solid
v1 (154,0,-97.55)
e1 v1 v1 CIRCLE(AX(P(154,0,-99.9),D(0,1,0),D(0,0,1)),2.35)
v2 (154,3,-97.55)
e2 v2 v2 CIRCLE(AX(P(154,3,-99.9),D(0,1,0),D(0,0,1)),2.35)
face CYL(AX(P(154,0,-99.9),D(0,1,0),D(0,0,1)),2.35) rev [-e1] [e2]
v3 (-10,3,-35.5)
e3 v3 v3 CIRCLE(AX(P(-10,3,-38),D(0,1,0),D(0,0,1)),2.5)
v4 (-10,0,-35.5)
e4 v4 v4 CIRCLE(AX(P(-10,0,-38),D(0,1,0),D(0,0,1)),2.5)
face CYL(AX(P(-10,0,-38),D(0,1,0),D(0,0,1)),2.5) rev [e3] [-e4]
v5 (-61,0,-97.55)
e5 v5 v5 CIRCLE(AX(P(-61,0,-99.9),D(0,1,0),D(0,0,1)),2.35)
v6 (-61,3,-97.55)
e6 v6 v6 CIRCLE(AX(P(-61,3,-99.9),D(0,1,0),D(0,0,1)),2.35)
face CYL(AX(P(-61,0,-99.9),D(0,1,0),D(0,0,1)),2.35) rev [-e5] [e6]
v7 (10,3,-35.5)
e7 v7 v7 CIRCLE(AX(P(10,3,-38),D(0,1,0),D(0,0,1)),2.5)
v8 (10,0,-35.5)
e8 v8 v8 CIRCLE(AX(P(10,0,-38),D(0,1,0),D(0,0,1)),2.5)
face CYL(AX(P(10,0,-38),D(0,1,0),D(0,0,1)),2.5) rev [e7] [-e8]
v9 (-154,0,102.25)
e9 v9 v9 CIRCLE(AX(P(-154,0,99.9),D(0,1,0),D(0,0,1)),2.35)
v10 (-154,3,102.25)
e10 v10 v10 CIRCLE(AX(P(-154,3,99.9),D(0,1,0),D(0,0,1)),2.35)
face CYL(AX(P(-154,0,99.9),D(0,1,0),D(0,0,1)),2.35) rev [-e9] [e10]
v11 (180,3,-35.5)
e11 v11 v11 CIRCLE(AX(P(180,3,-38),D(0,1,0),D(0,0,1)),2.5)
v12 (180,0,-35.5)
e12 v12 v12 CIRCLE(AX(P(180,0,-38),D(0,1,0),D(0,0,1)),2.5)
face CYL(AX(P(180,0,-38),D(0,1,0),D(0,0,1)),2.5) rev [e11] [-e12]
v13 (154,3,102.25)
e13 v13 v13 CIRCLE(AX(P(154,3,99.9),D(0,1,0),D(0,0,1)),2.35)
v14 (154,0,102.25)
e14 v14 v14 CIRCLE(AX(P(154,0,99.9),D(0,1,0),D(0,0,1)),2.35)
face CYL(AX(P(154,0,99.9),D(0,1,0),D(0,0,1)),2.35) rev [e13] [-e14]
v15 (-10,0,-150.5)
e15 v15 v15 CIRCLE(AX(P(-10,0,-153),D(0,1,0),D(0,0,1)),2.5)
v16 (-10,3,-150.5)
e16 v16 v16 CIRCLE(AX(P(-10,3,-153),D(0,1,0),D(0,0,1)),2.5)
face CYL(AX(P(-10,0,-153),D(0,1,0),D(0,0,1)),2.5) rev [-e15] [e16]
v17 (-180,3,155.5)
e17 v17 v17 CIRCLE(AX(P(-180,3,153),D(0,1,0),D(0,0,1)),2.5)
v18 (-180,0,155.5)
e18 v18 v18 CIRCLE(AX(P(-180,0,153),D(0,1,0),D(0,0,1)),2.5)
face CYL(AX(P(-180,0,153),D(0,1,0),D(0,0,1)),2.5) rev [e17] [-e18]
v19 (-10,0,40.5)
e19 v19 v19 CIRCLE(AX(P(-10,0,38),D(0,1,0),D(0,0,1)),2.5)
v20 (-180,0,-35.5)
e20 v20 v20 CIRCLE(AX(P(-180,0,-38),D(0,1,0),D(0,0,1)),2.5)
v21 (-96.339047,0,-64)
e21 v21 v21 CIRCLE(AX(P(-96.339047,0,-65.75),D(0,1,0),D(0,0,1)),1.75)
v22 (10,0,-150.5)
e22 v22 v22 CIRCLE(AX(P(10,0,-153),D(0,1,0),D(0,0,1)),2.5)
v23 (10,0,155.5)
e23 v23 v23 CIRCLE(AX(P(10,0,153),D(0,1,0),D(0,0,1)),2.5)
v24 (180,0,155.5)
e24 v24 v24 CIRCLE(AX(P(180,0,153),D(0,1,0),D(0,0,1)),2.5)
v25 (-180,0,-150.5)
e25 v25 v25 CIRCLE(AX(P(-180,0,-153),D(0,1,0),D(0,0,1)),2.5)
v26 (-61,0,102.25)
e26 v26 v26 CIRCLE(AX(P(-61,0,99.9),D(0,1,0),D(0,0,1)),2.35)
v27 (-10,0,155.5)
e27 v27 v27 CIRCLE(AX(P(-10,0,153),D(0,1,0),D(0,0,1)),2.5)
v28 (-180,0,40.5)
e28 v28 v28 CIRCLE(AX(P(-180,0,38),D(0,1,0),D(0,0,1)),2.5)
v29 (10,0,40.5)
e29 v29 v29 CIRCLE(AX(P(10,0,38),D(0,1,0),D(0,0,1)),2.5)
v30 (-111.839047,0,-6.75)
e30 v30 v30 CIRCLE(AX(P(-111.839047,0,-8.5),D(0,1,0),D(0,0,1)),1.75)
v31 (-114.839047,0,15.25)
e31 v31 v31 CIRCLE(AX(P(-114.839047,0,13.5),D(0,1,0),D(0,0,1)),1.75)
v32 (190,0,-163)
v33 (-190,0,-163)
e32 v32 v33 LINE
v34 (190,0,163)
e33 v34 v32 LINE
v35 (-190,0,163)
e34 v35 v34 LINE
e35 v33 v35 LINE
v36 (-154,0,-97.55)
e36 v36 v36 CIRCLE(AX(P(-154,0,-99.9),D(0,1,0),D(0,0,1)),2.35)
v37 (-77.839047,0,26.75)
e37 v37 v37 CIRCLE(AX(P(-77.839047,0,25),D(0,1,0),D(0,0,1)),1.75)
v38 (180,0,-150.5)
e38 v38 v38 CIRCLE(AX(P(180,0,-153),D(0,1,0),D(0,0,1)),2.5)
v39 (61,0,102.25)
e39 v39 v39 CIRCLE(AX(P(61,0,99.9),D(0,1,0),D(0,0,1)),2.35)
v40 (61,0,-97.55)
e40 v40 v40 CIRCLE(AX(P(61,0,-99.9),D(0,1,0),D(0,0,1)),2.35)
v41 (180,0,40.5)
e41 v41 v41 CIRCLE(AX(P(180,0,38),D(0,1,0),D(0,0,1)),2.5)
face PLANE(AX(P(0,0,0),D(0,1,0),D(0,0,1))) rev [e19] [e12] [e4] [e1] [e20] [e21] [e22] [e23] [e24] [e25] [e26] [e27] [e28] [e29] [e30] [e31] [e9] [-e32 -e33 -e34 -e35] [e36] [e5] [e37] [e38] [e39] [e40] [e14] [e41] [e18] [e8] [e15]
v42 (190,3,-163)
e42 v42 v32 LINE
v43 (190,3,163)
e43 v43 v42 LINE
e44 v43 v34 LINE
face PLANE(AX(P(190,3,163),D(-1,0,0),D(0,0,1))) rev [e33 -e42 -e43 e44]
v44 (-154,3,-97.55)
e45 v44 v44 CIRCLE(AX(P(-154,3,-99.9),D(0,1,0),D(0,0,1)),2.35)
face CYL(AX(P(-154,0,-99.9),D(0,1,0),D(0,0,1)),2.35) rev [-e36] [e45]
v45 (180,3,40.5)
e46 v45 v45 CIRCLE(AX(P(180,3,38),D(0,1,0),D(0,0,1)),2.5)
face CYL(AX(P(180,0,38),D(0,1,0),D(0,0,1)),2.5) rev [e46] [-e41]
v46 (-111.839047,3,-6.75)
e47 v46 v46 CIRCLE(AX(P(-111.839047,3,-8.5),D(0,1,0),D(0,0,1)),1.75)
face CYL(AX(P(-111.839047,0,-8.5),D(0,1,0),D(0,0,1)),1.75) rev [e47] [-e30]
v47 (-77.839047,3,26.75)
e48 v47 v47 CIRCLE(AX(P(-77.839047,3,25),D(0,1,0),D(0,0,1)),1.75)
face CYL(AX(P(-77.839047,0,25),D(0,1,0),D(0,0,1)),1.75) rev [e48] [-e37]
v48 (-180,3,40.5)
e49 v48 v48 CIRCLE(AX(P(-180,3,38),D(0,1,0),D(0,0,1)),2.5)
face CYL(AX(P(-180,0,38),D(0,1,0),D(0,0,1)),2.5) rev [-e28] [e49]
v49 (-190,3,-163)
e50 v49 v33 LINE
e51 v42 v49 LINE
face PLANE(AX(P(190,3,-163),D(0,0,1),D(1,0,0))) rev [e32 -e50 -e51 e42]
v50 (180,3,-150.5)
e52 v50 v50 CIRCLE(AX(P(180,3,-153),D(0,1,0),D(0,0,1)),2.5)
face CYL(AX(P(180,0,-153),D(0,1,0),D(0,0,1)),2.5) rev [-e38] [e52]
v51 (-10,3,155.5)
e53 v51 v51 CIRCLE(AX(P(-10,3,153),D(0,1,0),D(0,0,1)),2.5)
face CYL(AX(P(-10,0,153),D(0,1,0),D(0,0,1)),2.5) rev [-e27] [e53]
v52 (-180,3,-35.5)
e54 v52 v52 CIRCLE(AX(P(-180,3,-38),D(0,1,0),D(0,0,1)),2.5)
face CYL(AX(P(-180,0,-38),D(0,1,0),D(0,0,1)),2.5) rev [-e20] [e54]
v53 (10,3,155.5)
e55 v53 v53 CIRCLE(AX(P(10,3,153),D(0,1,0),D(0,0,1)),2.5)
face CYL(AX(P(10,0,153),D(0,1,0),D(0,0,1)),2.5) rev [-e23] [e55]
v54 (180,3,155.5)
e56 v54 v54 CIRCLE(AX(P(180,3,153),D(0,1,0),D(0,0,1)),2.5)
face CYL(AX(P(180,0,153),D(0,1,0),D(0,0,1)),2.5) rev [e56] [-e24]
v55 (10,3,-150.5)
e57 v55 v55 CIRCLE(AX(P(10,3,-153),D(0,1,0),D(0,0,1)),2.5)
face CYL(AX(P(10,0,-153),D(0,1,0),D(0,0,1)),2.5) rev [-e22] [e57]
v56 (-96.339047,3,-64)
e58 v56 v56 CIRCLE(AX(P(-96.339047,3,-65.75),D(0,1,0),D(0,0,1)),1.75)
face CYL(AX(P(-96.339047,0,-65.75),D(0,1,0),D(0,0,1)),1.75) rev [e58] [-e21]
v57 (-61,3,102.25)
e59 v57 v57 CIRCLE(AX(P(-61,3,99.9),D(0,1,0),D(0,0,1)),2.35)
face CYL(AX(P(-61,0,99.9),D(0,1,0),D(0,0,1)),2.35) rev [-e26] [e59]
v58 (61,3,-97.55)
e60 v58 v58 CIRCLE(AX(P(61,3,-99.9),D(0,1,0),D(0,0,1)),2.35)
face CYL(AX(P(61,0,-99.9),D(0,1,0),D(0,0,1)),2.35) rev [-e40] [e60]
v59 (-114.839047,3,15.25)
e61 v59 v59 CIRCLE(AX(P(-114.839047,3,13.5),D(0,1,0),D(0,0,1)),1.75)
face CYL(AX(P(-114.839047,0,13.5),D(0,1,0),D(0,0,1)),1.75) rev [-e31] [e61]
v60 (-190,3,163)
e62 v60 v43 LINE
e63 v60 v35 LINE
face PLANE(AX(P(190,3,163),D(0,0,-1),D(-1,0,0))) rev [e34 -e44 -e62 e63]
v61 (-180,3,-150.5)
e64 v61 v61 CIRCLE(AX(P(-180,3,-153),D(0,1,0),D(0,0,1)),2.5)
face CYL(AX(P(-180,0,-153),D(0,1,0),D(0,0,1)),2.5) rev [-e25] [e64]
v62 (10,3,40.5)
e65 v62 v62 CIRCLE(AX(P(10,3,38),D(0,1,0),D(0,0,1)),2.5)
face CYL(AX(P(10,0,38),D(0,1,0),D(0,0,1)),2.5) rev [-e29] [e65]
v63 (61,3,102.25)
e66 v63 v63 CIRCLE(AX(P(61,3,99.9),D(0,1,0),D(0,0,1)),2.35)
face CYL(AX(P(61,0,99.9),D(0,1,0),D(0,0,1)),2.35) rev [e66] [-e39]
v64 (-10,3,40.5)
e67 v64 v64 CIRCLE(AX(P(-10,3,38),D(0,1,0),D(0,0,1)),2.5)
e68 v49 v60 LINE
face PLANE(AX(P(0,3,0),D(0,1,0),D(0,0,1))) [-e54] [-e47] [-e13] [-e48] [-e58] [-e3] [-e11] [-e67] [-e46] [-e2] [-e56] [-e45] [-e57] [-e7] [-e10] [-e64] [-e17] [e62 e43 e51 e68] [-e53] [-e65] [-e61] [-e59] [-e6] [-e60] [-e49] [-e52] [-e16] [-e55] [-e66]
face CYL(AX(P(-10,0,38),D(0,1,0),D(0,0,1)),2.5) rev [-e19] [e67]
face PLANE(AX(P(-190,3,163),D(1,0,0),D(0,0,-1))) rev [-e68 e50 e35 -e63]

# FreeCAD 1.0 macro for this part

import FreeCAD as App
import Part
import Sketcher

V = App.Vector


def add_polygon(sketch, points):
    """Adds a closed chain of lines whose ends are joined by coincident constraints."""
    first, n = sketch.GeometryCount, len(points)
    for a, b in zip(points, points[1:] + points[:1]):
        sketch.addGeometry(Part.LineSegment(App.Vector(*a, 0), App.Vector(*b, 0)), False)
    for i in range(n):
        sketch.addConstraint(Sketcher.Constraint("Coincident", first + i, 2, first + (i + 1) % n, 1))

doc = App.newDocument("Part")
body = doc.addObject("PartDesign::Body", "Body")

# Sketch on XZ plane
sketch1 = body.newObject("Sketcher::SketchObject", "Sketch")
sketch1.AttachmentSupport = (doc.getObject("XZ_Plane"), [""])
sketch1.MapMode = "FlatFace"
add_polygon(sketch1, [(-190, -163), (-190, 163), (190, 163), (190, -163)])  # lines 0-3
sketch1.addConstraint(Sketcher.Constraint("Vertical", 0))
sketch1.addConstraint(Sketcher.Constraint("Horizontal", 1))
sketch1.addConstraint(Sketcher.Constraint("Vertical", 2))
sketch1.addConstraint(Sketcher.Constraint("Horizontal", 3))
sketch1.addConstraint(Sketcher.Constraint("Symmetric", 0, 2, 2, 2, -1, 1))
sketch1.addConstraint(Sketcher.Constraint("DistanceX", 1, 1, 1, 2, 380.0))
sketch1.addConstraint(Sketcher.Constraint("DistanceY", 0, 1, 0, 2, 326.0))
pad1 = body.newObject("PartDesign::Pad", "Pad")
pad1.Profile = sketch1
pad1.Length = 3
pad1.Reversed = True

# Sketch on XZ plane
sketch2 = body.newObject("Sketcher::SketchObject", "Sketch001")
sketch2.AttachmentSupport = (doc.getObject("XZ_Plane"), [""])
sketch2.MapMode = "FlatFace"
sketch2.AttachmentOffset = App.Placement(V(0, 0, -3), App.Rotation())
sketch2.addGeometry(Part.Circle(V(-180, -153, 0), V(0, 0, 1), 2.5), False)
sketch2.addGeometry(Part.Circle(V(180, -153, 0), V(0, 0, 1), 2.5), False)
sketch2.addGeometry(Part.Circle(V(-180, 153, 0), V(0, 0, 1), 2.5), False)
sketch2.addGeometry(Part.Circle(V(180, 153, 0), V(0, 0, 1), 2.5), False)
sketch2.addGeometry(Part.Circle(V(-10, -153, 0), V(0, 0, 1), 2.5), False)
sketch2.addGeometry(Part.Circle(V(10, -153, 0), V(0, 0, 1), 2.5), False)
sketch2.addGeometry(Part.Circle(V(-10, -38, 0), V(0, 0, 1), 2.5), False)
sketch2.addGeometry(Part.Circle(V(10, -38, 0), V(0, 0, 1), 2.5), False)
sketch2.addGeometry(Part.Circle(V(-10, 38, 0), V(0, 0, 1), 2.5), False)
sketch2.addGeometry(Part.Circle(V(10, 38, 0), V(0, 0, 1), 2.5), False)
sketch2.addGeometry(Part.Circle(V(-10, 153, 0), V(0, 0, 1), 2.5), False)
sketch2.addGeometry(Part.Circle(V(10, 153, 0), V(0, 0, 1), 2.5), False)
sketch2.addGeometry(Part.Circle(V(-180, -38, 0), V(0, 0, 1), 2.5), False)
sketch2.addGeometry(Part.Circle(V(-180, 38, 0), V(0, 0, 1), 2.5), False)
sketch2.addGeometry(Part.Circle(V(180, -38, 0), V(0, 0, 1), 2.5), False)
sketch2.addGeometry(Part.Circle(V(180, 38, 0), V(0, 0, 1), 2.5), False)
sketch2.addConstraint(Sketcher.Constraint("Equal", 0, 1))
sketch2.addConstraint(Sketcher.Constraint("Equal", 1, 2))
sketch2.addConstraint(Sketcher.Constraint("Equal", 2, 3))
sketch2.addConstraint(Sketcher.Constraint("Equal", 3, 4))
sketch2.addConstraint(Sketcher.Constraint("Equal", 4, 5))
sketch2.addConstraint(Sketcher.Constraint("Equal", 5, 6))
sketch2.addConstraint(Sketcher.Constraint("Equal", 6, 7))
sketch2.addConstraint(Sketcher.Constraint("Equal", 7, 8))
sketch2.addConstraint(Sketcher.Constraint("Equal", 8, 9))
sketch2.addConstraint(Sketcher.Constraint("Equal", 9, 10))
sketch2.addConstraint(Sketcher.Constraint("Equal", 10, 11))
sketch2.addConstraint(Sketcher.Constraint("Equal", 11, 12))
sketch2.addConstraint(Sketcher.Constraint("Equal", 12, 13))
sketch2.addConstraint(Sketcher.Constraint("Equal", 13, 14))
sketch2.addConstraint(Sketcher.Constraint("Equal", 14, 15))
sketch2.addConstraint(Sketcher.Constraint("Symmetric", 1, 3, 2, 3, -1, 1))
sketch2.addConstraint(Sketcher.Constraint("Symmetric", 0, 3, 3, 3, -1, 1))
sketch2.addConstraint(Sketcher.Constraint("Symmetric", 7, 3, 8, 3, -1, 1))
sketch2.addConstraint(Sketcher.Constraint("Symmetric", 6, 3, 9, 3, -1, 1))
sketch2.addConstraint(Sketcher.Constraint("Symmetric", 5, 3, 10, 3, -1, 1))
sketch2.addConstraint(Sketcher.Constraint("Symmetric", 4, 3, 11, 3, -1, 1))
sketch2.addConstraint(Sketcher.Constraint("Symmetric", 13, 3, 14, 3, -1, 1))
sketch2.addConstraint(Sketcher.Constraint("Symmetric", 12, 3, 15, 3, -1, 1))
sketch2.addConstraint(Sketcher.Constraint("Symmetric", 0, 3, 1, 3, -2))
sketch2.addConstraint(Sketcher.Constraint("Symmetric", 4, 3, 5, 3, -2))
sketch2.addConstraint(Sketcher.Constraint("Symmetric", 6, 3, 7, 3, -2))
sketch2.addConstraint(Sketcher.Constraint("Symmetric", 12, 3, 14, 3, -2))
sketch2.addConstraint(Sketcher.Constraint("Horizontal", 1, 3, 4, 3))
sketch2.addConstraint(Sketcher.Constraint("Horizontal", 7, 3, 12, 3))
sketch2.addConstraint(Sketcher.Constraint("Vertical", 4, 3, 6, 3))
sketch2.addConstraint(Sketcher.Constraint("Vertical", 2, 3, 12, 3))
sketch2.addConstraint(Sketcher.Constraint("Diameter", 0, 5.0))
sketch2.addConstraint(Sketcher.Constraint("DistanceX", 0, 3, -1, 1, 180.0))
sketch2.addConstraint(Sketcher.Constraint("DistanceY", 0, 3, -1, 1, 153.0))
sketch2.addConstraint(Sketcher.Constraint("DistanceX", 4, 3, -1, 1, 10.0))
sketch2.addConstraint(Sketcher.Constraint("DistanceY", 6, 3, -1, 1, 38.0))
pocket1 = body.newObject("PartDesign::Pocket", "Pocket")
pocket1.Profile = sketch2
pocket1.Type = "ThroughAll"
pocket1.Reversed = True

# Sketch on XZ plane
sketch3 = body.newObject("Sketcher::SketchObject", "Sketch002")
sketch3.AttachmentSupport = (doc.getObject("XZ_Plane"), [""])
sketch3.MapMode = "FlatFace"
sketch3.AttachmentOffset = App.Placement(V(0, 0, -3), App.Rotation())
sketch3.addGeometry(Part.Circle(V(61, -99.9, 0), V(0, 0, 1), 2.4), False)
sketch3.addGeometry(Part.Circle(V(154, -99.9, 0), V(0, 0, 1), 2.4), False)
sketch3.addGeometry(Part.Circle(V(-154, 99.9, 0), V(0, 0, 1), 2.4), False)
sketch3.addGeometry(Part.Circle(V(-61, 99.9, 0), V(0, 0, 1), 2.4), False)
sketch3.addGeometry(Part.Circle(V(154, 99.9, 0), V(0, 0, 1), 2.4), False)
sketch3.addGeometry(Part.Circle(V(61, 99.9, 0), V(0, 0, 1), 2.4), False)
sketch3.addGeometry(Part.Circle(V(-154, -99.9, 0), V(0, 0, 1), 2.4), False)
sketch3.addGeometry(Part.Circle(V(-61, -99.9, 0), V(0, 0, 1), 2.4), False)
sketch3.addConstraint(Sketcher.Constraint("Equal", 0, 1))
sketch3.addConstraint(Sketcher.Constraint("Equal", 1, 2))
sketch3.addConstraint(Sketcher.Constraint("Equal", 2, 3))
sketch3.addConstraint(Sketcher.Constraint("Equal", 3, 4))
sketch3.addConstraint(Sketcher.Constraint("Equal", 4, 5))
sketch3.addConstraint(Sketcher.Constraint("Equal", 5, 6))
sketch3.addConstraint(Sketcher.Constraint("Equal", 6, 7))
sketch3.addConstraint(Sketcher.Constraint("Symmetric", 1, 3, 2, 3, -1, 1))
sketch3.addConstraint(Sketcher.Constraint("Symmetric", 0, 3, 3, 3, -1, 1))
sketch3.addConstraint(Sketcher.Constraint("Symmetric", 4, 3, 6, 3, -1, 1))
sketch3.addConstraint(Sketcher.Constraint("Symmetric", 5, 3, 7, 3, -1, 1))
sketch3.addConstraint(Sketcher.Constraint("Symmetric", 2, 3, 4, 3, -2))
sketch3.addConstraint(Sketcher.Constraint("Symmetric", 3, 3, 5, 3, -2))
sketch3.addConstraint(Sketcher.Constraint("Horizontal", 0, 3, 1, 3))
sketch3.addConstraint(Sketcher.Constraint("Diameter", 0, 4.7))
sketch3.addConstraint(Sketcher.Constraint("DistanceX", -1, 1, 0, 3, 61.0))
sketch3.addConstraint(Sketcher.Constraint("DistanceX", -1, 1, 1, 3, 154.0))
sketch3.addConstraint(Sketcher.Constraint("DistanceY", 0, 3, -1, 1, 99.9))
pocket2 = body.newObject("PartDesign::Pocket", "Pocket001")
pocket2.Profile = sketch3
pocket2.Type = "ThroughAll"
pocket2.Reversed = True

# Sketch on XZ plane
sketch4 = body.newObject("Sketcher::SketchObject", "Sketch003")
sketch4.AttachmentSupport = (doc.getObject("XZ_Plane"), [""])
sketch4.MapMode = "FlatFace"
sketch4.AttachmentOffset = App.Placement(V(0, 0, -3), App.Rotation())
sketch4.addGeometry(Part.Circle(V(-114.8, 13.5, 0), V(0, 0, 1), 1.8), False)
sketch4.addGeometry(Part.Circle(V(-77.8, 25, 0), V(0, 0, 1), 1.8), False)
sketch4.addGeometry(Part.Circle(V(-111.8, -8.5, 0), V(0, 0, 1), 1.8), False)
sketch4.addGeometry(Part.Circle(V(-96.3, -65.8, 0), V(0, 0, 1), 1.8), False)
sketch4.addConstraint(Sketcher.Constraint("Equal", 0, 1))
sketch4.addConstraint(Sketcher.Constraint("Equal", 1, 2))
sketch4.addConstraint(Sketcher.Constraint("Equal", 2, 3))
sketch4.addConstraint(Sketcher.Constraint("Diameter", 0, 3.5))
sketch4.addConstraint(Sketcher.Constraint("DistanceY", -1, 1, 1, 3, 25.0))
sketch4.addConstraint(Sketcher.Constraint("DistanceX", 0, 3, 1, 3, 37.0))
sketch4.addConstraint(Sketcher.Constraint("DistanceX", 0, 3, 2, 3, 3.0))
sketch4.addConstraint(Sketcher.Constraint("DistanceY", 2, 3, 0, 3, 22.0))
sketch4.addConstraint(Sketcher.Constraint("DistanceY", -1, 1, 0, 3, 13.5))
sketch4.addConstraint(Sketcher.Constraint("DistanceX", 2, 3, 3, 3, 15.5))
sketch4.addConstraint(Sketcher.Constraint("DistanceY", 3, 3, -1, 1, 65.75))
sketch4.addConstraint(Sketcher.Constraint("DistanceX", 0, 3, -1, 1, 114.839047))
pocket3 = body.newObject("PartDesign::Pocket", "Pocket002")
pocket3.Profile = sketch4
pocket3.Type = "ThroughAll"
pocket3.Reversed = True

doc.recompute()
